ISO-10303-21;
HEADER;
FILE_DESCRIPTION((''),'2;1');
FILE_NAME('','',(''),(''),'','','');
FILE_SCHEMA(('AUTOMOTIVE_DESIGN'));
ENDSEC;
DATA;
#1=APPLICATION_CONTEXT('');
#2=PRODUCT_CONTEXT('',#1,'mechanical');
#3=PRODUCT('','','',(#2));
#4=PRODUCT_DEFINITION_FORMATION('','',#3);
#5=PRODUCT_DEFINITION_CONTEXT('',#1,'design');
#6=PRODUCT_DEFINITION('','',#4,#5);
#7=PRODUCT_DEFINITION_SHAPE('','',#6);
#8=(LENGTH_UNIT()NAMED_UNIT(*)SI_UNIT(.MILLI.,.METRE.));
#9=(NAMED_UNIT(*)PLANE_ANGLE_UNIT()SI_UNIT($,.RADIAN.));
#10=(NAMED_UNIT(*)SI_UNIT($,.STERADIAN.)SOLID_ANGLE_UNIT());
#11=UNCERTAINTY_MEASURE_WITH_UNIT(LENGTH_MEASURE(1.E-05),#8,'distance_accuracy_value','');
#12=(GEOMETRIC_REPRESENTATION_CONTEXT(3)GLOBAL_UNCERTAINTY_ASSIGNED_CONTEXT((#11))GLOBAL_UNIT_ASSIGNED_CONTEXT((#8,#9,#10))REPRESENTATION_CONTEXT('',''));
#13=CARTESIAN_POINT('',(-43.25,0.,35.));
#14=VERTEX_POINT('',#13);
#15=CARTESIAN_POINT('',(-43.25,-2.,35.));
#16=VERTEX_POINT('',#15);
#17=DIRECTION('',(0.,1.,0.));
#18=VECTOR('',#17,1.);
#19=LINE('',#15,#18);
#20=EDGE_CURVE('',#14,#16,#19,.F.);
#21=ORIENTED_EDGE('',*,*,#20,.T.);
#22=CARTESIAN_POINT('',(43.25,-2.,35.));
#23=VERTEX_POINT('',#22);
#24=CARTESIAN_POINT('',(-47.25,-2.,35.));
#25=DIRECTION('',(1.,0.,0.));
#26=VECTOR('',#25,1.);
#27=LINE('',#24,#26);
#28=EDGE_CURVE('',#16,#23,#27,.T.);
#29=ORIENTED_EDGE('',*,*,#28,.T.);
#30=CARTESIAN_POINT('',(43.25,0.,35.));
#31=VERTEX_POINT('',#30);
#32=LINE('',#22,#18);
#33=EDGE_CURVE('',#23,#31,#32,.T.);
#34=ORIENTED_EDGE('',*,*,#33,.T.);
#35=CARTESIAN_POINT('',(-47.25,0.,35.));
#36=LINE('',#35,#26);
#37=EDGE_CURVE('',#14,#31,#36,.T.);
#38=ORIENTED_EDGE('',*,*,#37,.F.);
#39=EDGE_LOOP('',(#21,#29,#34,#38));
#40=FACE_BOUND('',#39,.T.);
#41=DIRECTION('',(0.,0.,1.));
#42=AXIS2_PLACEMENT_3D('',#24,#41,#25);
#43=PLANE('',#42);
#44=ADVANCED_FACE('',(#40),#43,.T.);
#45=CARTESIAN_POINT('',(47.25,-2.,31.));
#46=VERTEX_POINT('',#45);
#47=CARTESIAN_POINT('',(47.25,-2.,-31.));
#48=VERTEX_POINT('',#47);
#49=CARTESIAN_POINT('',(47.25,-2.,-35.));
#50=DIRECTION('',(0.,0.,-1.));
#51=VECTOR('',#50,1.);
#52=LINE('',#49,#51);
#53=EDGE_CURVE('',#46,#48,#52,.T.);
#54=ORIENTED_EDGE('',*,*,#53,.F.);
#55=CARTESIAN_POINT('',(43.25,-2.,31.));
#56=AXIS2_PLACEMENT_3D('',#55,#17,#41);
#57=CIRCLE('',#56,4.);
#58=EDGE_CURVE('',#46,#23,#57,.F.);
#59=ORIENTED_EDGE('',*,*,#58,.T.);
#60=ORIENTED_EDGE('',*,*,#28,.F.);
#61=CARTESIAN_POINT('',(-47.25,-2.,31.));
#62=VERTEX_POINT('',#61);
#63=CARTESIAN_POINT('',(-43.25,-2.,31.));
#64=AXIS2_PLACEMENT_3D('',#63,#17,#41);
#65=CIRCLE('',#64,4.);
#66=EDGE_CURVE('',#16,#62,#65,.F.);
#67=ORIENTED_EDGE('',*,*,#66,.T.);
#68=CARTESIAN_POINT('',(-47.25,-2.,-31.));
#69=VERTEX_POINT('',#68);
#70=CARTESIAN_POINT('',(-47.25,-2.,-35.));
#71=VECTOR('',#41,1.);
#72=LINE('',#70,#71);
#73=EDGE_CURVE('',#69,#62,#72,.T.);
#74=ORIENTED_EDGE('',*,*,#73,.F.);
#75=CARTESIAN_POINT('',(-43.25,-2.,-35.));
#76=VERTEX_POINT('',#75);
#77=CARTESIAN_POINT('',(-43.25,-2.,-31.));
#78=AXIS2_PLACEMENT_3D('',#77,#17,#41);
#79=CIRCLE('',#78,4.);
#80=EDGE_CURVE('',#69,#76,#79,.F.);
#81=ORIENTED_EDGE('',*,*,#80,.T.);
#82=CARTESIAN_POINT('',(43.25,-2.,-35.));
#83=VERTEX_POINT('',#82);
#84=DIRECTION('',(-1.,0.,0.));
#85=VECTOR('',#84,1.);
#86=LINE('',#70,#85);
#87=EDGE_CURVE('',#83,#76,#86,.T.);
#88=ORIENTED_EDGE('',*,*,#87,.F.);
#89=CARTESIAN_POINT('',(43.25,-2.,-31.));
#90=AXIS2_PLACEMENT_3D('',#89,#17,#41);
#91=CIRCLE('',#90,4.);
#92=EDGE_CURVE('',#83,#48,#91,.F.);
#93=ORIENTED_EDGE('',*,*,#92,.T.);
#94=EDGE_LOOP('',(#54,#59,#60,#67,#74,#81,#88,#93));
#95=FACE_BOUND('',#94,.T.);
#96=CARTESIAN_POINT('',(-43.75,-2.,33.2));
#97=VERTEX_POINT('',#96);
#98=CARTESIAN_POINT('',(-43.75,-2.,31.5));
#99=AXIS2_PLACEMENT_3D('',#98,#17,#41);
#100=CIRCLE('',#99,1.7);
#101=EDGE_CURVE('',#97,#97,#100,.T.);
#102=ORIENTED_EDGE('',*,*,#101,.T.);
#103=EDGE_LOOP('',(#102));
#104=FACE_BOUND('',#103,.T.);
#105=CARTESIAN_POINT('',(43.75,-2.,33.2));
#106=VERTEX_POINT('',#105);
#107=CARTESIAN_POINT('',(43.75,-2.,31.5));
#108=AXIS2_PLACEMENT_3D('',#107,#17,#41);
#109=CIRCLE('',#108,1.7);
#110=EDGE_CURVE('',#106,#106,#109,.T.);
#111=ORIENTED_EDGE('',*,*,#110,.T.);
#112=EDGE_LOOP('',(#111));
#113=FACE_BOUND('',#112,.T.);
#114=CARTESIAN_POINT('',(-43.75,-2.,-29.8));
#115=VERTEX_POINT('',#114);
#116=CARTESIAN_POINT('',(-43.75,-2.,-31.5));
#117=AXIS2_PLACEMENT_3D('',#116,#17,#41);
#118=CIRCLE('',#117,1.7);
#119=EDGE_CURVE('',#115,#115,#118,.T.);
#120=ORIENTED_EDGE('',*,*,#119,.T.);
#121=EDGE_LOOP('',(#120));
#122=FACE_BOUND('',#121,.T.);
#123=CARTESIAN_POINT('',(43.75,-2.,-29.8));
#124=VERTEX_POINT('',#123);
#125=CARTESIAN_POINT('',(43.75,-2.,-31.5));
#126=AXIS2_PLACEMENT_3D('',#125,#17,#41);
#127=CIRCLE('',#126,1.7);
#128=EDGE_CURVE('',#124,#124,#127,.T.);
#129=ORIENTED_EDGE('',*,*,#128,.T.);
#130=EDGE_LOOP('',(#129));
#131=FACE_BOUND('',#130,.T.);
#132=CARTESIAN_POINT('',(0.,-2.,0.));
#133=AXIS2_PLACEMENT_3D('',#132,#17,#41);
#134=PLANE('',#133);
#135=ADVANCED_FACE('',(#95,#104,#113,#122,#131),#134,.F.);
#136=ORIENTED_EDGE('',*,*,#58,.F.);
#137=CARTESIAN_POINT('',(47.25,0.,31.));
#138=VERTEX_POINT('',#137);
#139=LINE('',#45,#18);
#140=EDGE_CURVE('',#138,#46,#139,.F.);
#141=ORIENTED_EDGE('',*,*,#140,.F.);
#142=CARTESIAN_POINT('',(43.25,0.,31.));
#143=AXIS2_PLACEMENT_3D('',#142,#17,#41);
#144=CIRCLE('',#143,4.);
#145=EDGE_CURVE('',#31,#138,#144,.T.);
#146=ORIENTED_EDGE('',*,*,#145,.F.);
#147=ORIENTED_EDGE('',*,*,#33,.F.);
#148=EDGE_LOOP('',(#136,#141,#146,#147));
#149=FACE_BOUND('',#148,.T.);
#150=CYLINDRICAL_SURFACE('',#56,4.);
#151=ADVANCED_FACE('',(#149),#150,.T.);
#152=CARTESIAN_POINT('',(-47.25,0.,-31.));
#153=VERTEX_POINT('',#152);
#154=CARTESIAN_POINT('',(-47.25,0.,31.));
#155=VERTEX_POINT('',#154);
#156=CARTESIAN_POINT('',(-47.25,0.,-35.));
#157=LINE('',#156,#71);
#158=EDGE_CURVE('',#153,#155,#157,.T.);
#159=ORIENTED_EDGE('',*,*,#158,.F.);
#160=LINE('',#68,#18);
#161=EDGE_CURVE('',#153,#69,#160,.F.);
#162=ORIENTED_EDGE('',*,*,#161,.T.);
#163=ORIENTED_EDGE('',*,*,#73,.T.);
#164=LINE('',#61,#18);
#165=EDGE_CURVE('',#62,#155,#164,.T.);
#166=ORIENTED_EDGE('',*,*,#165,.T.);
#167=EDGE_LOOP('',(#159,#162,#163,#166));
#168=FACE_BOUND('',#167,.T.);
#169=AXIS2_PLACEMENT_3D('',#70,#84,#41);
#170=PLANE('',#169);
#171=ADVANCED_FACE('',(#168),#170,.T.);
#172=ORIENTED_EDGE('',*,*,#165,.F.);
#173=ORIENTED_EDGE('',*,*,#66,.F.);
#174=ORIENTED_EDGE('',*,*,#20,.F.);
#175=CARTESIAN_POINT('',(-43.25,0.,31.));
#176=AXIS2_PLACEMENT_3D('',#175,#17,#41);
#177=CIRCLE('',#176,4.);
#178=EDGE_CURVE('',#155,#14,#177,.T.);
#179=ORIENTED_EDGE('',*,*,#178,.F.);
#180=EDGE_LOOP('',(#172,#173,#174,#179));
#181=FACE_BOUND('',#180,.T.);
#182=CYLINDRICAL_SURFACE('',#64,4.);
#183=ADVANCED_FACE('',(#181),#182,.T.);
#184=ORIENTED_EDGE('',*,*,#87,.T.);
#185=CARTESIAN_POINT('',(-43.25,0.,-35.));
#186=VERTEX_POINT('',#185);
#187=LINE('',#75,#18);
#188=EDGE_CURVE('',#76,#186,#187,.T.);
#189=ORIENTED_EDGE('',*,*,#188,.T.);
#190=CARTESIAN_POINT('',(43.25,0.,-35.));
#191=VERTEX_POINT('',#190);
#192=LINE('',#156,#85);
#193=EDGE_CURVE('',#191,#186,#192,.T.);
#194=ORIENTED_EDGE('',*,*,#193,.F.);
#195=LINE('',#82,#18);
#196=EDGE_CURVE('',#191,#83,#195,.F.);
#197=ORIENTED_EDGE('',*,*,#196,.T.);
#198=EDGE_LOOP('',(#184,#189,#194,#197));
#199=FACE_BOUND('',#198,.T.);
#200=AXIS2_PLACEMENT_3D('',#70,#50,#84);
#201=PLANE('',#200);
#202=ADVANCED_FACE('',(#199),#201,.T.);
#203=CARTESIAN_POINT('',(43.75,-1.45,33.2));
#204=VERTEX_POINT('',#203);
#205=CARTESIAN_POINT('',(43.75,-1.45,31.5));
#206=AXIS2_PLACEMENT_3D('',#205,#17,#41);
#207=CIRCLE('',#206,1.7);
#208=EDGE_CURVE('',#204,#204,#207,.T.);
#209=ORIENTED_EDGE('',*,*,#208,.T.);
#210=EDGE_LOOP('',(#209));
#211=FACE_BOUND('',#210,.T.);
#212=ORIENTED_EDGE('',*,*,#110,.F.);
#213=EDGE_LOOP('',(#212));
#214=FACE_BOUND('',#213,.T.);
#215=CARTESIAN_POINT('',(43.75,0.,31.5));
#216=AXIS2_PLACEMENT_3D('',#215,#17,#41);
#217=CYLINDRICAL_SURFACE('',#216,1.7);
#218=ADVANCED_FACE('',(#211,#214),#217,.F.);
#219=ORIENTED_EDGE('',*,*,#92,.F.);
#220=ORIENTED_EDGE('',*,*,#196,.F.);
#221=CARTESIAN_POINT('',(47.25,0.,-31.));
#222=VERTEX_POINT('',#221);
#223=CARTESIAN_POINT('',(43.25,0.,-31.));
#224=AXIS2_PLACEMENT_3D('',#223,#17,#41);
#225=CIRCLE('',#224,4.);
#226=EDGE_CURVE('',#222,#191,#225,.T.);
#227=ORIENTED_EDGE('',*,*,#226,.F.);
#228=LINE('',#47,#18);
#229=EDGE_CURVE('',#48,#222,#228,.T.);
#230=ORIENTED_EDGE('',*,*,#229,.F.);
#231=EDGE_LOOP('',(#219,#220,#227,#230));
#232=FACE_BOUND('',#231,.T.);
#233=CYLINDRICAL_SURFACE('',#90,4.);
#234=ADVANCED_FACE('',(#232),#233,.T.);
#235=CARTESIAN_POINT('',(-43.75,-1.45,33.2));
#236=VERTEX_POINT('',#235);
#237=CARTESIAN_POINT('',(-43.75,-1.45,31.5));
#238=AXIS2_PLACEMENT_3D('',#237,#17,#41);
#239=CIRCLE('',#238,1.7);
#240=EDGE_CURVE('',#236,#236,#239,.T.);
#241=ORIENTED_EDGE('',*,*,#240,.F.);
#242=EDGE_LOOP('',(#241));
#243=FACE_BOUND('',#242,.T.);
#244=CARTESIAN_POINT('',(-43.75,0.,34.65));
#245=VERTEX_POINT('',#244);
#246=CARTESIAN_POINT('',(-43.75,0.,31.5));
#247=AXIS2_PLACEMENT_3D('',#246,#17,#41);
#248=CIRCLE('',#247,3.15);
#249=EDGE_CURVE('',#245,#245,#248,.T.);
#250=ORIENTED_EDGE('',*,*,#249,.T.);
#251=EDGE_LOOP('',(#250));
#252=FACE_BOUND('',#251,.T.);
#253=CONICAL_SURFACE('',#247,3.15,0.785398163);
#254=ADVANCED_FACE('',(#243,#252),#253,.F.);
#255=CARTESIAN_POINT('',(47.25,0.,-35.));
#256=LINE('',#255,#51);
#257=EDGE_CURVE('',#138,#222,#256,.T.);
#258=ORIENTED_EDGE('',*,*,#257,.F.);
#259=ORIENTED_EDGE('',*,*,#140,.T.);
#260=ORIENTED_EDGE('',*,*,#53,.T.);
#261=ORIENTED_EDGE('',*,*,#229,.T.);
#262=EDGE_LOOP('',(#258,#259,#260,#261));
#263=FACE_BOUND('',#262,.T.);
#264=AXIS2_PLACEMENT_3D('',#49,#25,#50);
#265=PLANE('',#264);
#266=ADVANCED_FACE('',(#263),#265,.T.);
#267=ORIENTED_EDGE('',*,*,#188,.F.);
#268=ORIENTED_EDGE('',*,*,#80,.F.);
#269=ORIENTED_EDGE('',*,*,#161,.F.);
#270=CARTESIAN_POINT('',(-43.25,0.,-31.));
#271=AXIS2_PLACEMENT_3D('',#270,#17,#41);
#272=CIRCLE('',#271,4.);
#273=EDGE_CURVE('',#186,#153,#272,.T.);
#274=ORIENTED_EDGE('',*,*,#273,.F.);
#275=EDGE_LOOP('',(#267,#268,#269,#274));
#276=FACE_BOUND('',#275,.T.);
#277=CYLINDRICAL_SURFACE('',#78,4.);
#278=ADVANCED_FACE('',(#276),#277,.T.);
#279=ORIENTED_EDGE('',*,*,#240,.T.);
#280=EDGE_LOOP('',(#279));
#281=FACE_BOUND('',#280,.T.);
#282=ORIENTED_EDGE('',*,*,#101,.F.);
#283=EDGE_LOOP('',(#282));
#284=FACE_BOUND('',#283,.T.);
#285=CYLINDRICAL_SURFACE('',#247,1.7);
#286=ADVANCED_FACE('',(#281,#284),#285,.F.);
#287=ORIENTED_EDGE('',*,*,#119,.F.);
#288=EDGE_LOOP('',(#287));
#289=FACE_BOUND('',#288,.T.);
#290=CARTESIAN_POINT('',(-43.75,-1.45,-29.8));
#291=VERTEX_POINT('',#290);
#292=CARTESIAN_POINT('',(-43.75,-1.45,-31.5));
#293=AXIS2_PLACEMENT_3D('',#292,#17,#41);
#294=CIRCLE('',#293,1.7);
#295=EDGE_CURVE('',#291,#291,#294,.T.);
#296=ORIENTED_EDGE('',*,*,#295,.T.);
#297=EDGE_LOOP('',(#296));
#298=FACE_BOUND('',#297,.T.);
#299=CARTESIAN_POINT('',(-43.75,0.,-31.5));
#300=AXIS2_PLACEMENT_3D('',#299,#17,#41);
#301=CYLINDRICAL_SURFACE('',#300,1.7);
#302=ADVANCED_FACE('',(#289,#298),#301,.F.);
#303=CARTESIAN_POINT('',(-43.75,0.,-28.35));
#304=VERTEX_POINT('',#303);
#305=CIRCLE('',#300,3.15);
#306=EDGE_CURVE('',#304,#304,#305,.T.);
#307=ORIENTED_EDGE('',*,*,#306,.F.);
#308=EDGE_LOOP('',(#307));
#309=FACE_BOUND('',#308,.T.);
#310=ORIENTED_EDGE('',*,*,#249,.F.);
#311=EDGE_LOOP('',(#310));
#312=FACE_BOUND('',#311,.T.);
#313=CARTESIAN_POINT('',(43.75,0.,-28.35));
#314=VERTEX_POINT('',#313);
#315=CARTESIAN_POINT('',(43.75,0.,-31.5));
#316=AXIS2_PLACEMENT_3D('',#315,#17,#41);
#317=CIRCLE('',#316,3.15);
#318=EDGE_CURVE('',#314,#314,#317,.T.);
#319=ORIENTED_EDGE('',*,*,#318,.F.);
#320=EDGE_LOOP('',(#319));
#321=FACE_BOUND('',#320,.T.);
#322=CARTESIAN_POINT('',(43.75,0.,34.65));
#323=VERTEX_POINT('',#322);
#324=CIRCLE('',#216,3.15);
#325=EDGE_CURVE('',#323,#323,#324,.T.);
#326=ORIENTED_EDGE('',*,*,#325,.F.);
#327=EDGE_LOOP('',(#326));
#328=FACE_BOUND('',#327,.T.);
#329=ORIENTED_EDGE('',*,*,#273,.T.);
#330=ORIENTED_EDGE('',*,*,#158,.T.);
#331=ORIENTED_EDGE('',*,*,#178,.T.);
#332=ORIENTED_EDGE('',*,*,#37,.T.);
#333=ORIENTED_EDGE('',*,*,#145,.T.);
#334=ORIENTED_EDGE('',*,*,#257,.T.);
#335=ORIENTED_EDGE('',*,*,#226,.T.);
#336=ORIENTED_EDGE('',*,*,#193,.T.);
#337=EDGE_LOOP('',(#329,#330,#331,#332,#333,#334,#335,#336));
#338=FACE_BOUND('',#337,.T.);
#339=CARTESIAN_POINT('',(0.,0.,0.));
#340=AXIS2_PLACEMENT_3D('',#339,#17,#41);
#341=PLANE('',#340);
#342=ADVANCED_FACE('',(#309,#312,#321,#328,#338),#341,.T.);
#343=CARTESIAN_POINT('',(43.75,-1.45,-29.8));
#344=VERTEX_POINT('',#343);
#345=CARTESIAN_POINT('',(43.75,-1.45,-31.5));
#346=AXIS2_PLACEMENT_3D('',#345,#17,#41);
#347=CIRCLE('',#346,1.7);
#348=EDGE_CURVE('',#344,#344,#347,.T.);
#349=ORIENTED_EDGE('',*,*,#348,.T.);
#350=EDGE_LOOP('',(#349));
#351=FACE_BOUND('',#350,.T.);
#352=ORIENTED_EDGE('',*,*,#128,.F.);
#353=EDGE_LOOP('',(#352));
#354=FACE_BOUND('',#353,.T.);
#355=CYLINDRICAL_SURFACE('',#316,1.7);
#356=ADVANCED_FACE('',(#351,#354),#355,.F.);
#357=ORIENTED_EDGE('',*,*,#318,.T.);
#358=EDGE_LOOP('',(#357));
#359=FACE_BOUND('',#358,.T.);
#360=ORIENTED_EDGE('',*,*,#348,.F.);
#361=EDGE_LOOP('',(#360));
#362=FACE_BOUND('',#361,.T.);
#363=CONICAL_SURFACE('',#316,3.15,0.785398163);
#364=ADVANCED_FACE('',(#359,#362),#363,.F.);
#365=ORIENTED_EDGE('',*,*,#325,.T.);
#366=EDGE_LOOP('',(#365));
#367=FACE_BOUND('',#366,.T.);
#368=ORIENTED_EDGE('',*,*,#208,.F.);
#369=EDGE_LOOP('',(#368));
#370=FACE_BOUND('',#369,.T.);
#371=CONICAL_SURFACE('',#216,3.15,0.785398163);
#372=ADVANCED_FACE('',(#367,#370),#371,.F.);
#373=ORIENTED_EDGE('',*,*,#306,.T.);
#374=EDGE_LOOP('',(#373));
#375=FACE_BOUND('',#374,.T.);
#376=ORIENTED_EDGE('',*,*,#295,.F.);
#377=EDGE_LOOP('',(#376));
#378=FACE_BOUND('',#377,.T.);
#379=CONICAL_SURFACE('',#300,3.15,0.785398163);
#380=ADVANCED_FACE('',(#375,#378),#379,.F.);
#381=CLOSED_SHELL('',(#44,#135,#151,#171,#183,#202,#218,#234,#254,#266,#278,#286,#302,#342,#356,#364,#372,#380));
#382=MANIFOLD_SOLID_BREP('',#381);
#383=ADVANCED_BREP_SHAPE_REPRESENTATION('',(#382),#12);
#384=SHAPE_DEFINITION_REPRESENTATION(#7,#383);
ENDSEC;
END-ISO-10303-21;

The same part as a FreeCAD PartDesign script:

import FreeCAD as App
import Part
import Sketcher


def edges_at(feature, points):
    """Names of the edges that pass closest to the given points."""
    edges = feature.Shape.Edges
    near = lambda p: min(range(len(edges)), key=lambda i: edges[i].distToShape(Part.Vertex(*p))[0])
    return sorted({f"Edge{near(p) + 1}" for p in points})


def add_polygon(sketch, points):
    """Adds a closed chain of lines whose ends are joined by coincident constraints."""
    first, n = sketch.GeometryCount, len(points)
    for a, b in zip(points, points[1:] + points[:1]):
        sketch.addGeometry(Part.LineSegment(App.Vector(*a, 0), App.Vector(*b, 0)), False)
    for i in range(n):
        sketch.addConstraint(Sketcher.Constraint("Coincident", first + i, 2, first + (i + 1) % n, 1))

doc = App.newDocument("Part")
params = doc.addObject("Spreadsheet::Sheet", "Params")
for row, (alias, value) in enumerate([
    ("sketch1_height", "70 mm"),
    ("sketch1_width", "94.5 mm"),
    ("pad1_length", "2 mm"),
    ("sketch2_diameter", "3.4 mm"),
    ("hole_diameter", "3.4 mm"),
    ("hole_depth", "30 mm"),
    ("hole_csink_diameter", "6.3 mm"),
    ("fillet_radius", "4 mm"),
], start=1):
    params.set(f"A{row}", alias)
    params.set(f"B{row}", "=" + value)
    params.setAlias(f"B{row}", alias)

body = doc.addObject("PartDesign::Body", "Body")

# Sketch on XZ plane
sketch1 = doc.addObject("Sketcher::SketchObject", "Sketch")
body.addObject(sketch1)
sketch1.AttachmentSupport = (doc.XZ_Plane, [""])
sketch1.MapMode = "FlatFace"
add_polygon(sketch1, [(-47, -35), (-47, 35), (47, 35), (47, -35)])  # lines 0-3
sketch1.addConstraint(Sketcher.Constraint("Vertical", 0))
sketch1.addConstraint(Sketcher.Constraint("Horizontal", 1))
sketch1.addConstraint(Sketcher.Constraint("Vertical", 2))
sketch1.addConstraint(Sketcher.Constraint("Horizontal", 3))
sketch1.addConstraint(Sketcher.Constraint("Symmetric", 0, 2, 2, 2, -1, 1))
sketch1.addConstraint(Sketcher.Constraint("DistanceY", 0, 1, 0, 2, 70.0))
sketch1.addConstraint(Sketcher.Constraint("DistanceX", 1, 1, 1, 2, 94.5))
sketch1.setExpression("Constraints[9]", "Params.sketch1_height")
sketch1.setExpression("Constraints[10]", "Params.sketch1_width")
pad1 = doc.addObject("PartDesign::Pad", "Pad")
body.addObject(pad1)
pad1.Profile = sketch1
pad1.setExpression("Length", "Params.pad1_length")

# Sketch on XZ plane
sketch2 = doc.addObject("Sketcher::SketchObject", "Sketch001")
body.addObject(sketch2)
sketch2.AttachmentSupport = (doc.XZ_Plane, [""])
sketch2.MapMode = "FlatFace"
sketch2.addGeometry(Part.Circle(App.Vector(-43.8, -31.5, 0), App.Vector(0, 0, 1), 1.7), False)
sketch2.addGeometry(Part.Circle(App.Vector(43.8, -31.5, 0), App.Vector(0, 0, 1), 1.7), False)
sketch2.addGeometry(Part.Circle(App.Vector(43.8, 31.5, 0), App.Vector(0, 0, 1), 1.7), False)
sketch2.addGeometry(Part.Circle(App.Vector(-43.8, 31.5, 0), App.Vector(0, 0, 1), 1.7), False)
sketch2.addConstraint(Sketcher.Constraint("Equal", 0, 1))
sketch2.addConstraint(Sketcher.Constraint("Equal", 1, 2))
sketch2.addConstraint(Sketcher.Constraint("Equal", 2, 3))
sketch2.addConstraint(Sketcher.Constraint("Symmetric", 0, 3, 2, 3, -1, 1))
sketch2.addConstraint(Sketcher.Constraint("Symmetric", 1, 3, 3, 3, -1, 1))
sketch2.addConstraint(Sketcher.Constraint("Symmetric", 0, 3, 1, 3, -2))
sketch2.addConstraint(Sketcher.Constraint("Diameter", 0, 3.4))
sketch2.addConstraint(Sketcher.Constraint("DistanceY", 1, 3, 2, 3, 63.0))
sketch2.addConstraint(Sketcher.Constraint("DistanceX", 0, 3, 1, 3, 87.5))
sketch2.setExpression("Constraints[6]", "Params.sketch2_diameter")
doc.recompute()
hole = doc.addObject("PartDesign::Hole", "Hole")
body.addObject(hole)
hole.Profile = sketch2
hole.ThreadType = "None"
hole.setExpression("Diameter", "Params.hole_diameter")
hole.DepthType = "Dimension"
hole.setExpression("Depth", "Params.hole_depth")
hole.DrillPoint = "Angled"
hole.DrillPointAngle = 118
hole.HoleCutType = "Countersink"
hole.setExpression("HoleCutDiameter", "Params.hole_csink_diameter")
hole.HoleCutCountersinkAngle = 90
hole.Reversed = True
doc.recompute()

fillet = doc.addObject("PartDesign::Fillet", "Fillet")
body.addObject(fillet)
fillet.Base = (hole, edges_at(hole, [
    (47.25, -1, 35),
    (-47.25, -1, 35),
    (-47.25, -1, -35),
    (47.25, -1, -35),
]))
fillet.setExpression("Radius", "Params.fillet_radius")

doc.recompute()
